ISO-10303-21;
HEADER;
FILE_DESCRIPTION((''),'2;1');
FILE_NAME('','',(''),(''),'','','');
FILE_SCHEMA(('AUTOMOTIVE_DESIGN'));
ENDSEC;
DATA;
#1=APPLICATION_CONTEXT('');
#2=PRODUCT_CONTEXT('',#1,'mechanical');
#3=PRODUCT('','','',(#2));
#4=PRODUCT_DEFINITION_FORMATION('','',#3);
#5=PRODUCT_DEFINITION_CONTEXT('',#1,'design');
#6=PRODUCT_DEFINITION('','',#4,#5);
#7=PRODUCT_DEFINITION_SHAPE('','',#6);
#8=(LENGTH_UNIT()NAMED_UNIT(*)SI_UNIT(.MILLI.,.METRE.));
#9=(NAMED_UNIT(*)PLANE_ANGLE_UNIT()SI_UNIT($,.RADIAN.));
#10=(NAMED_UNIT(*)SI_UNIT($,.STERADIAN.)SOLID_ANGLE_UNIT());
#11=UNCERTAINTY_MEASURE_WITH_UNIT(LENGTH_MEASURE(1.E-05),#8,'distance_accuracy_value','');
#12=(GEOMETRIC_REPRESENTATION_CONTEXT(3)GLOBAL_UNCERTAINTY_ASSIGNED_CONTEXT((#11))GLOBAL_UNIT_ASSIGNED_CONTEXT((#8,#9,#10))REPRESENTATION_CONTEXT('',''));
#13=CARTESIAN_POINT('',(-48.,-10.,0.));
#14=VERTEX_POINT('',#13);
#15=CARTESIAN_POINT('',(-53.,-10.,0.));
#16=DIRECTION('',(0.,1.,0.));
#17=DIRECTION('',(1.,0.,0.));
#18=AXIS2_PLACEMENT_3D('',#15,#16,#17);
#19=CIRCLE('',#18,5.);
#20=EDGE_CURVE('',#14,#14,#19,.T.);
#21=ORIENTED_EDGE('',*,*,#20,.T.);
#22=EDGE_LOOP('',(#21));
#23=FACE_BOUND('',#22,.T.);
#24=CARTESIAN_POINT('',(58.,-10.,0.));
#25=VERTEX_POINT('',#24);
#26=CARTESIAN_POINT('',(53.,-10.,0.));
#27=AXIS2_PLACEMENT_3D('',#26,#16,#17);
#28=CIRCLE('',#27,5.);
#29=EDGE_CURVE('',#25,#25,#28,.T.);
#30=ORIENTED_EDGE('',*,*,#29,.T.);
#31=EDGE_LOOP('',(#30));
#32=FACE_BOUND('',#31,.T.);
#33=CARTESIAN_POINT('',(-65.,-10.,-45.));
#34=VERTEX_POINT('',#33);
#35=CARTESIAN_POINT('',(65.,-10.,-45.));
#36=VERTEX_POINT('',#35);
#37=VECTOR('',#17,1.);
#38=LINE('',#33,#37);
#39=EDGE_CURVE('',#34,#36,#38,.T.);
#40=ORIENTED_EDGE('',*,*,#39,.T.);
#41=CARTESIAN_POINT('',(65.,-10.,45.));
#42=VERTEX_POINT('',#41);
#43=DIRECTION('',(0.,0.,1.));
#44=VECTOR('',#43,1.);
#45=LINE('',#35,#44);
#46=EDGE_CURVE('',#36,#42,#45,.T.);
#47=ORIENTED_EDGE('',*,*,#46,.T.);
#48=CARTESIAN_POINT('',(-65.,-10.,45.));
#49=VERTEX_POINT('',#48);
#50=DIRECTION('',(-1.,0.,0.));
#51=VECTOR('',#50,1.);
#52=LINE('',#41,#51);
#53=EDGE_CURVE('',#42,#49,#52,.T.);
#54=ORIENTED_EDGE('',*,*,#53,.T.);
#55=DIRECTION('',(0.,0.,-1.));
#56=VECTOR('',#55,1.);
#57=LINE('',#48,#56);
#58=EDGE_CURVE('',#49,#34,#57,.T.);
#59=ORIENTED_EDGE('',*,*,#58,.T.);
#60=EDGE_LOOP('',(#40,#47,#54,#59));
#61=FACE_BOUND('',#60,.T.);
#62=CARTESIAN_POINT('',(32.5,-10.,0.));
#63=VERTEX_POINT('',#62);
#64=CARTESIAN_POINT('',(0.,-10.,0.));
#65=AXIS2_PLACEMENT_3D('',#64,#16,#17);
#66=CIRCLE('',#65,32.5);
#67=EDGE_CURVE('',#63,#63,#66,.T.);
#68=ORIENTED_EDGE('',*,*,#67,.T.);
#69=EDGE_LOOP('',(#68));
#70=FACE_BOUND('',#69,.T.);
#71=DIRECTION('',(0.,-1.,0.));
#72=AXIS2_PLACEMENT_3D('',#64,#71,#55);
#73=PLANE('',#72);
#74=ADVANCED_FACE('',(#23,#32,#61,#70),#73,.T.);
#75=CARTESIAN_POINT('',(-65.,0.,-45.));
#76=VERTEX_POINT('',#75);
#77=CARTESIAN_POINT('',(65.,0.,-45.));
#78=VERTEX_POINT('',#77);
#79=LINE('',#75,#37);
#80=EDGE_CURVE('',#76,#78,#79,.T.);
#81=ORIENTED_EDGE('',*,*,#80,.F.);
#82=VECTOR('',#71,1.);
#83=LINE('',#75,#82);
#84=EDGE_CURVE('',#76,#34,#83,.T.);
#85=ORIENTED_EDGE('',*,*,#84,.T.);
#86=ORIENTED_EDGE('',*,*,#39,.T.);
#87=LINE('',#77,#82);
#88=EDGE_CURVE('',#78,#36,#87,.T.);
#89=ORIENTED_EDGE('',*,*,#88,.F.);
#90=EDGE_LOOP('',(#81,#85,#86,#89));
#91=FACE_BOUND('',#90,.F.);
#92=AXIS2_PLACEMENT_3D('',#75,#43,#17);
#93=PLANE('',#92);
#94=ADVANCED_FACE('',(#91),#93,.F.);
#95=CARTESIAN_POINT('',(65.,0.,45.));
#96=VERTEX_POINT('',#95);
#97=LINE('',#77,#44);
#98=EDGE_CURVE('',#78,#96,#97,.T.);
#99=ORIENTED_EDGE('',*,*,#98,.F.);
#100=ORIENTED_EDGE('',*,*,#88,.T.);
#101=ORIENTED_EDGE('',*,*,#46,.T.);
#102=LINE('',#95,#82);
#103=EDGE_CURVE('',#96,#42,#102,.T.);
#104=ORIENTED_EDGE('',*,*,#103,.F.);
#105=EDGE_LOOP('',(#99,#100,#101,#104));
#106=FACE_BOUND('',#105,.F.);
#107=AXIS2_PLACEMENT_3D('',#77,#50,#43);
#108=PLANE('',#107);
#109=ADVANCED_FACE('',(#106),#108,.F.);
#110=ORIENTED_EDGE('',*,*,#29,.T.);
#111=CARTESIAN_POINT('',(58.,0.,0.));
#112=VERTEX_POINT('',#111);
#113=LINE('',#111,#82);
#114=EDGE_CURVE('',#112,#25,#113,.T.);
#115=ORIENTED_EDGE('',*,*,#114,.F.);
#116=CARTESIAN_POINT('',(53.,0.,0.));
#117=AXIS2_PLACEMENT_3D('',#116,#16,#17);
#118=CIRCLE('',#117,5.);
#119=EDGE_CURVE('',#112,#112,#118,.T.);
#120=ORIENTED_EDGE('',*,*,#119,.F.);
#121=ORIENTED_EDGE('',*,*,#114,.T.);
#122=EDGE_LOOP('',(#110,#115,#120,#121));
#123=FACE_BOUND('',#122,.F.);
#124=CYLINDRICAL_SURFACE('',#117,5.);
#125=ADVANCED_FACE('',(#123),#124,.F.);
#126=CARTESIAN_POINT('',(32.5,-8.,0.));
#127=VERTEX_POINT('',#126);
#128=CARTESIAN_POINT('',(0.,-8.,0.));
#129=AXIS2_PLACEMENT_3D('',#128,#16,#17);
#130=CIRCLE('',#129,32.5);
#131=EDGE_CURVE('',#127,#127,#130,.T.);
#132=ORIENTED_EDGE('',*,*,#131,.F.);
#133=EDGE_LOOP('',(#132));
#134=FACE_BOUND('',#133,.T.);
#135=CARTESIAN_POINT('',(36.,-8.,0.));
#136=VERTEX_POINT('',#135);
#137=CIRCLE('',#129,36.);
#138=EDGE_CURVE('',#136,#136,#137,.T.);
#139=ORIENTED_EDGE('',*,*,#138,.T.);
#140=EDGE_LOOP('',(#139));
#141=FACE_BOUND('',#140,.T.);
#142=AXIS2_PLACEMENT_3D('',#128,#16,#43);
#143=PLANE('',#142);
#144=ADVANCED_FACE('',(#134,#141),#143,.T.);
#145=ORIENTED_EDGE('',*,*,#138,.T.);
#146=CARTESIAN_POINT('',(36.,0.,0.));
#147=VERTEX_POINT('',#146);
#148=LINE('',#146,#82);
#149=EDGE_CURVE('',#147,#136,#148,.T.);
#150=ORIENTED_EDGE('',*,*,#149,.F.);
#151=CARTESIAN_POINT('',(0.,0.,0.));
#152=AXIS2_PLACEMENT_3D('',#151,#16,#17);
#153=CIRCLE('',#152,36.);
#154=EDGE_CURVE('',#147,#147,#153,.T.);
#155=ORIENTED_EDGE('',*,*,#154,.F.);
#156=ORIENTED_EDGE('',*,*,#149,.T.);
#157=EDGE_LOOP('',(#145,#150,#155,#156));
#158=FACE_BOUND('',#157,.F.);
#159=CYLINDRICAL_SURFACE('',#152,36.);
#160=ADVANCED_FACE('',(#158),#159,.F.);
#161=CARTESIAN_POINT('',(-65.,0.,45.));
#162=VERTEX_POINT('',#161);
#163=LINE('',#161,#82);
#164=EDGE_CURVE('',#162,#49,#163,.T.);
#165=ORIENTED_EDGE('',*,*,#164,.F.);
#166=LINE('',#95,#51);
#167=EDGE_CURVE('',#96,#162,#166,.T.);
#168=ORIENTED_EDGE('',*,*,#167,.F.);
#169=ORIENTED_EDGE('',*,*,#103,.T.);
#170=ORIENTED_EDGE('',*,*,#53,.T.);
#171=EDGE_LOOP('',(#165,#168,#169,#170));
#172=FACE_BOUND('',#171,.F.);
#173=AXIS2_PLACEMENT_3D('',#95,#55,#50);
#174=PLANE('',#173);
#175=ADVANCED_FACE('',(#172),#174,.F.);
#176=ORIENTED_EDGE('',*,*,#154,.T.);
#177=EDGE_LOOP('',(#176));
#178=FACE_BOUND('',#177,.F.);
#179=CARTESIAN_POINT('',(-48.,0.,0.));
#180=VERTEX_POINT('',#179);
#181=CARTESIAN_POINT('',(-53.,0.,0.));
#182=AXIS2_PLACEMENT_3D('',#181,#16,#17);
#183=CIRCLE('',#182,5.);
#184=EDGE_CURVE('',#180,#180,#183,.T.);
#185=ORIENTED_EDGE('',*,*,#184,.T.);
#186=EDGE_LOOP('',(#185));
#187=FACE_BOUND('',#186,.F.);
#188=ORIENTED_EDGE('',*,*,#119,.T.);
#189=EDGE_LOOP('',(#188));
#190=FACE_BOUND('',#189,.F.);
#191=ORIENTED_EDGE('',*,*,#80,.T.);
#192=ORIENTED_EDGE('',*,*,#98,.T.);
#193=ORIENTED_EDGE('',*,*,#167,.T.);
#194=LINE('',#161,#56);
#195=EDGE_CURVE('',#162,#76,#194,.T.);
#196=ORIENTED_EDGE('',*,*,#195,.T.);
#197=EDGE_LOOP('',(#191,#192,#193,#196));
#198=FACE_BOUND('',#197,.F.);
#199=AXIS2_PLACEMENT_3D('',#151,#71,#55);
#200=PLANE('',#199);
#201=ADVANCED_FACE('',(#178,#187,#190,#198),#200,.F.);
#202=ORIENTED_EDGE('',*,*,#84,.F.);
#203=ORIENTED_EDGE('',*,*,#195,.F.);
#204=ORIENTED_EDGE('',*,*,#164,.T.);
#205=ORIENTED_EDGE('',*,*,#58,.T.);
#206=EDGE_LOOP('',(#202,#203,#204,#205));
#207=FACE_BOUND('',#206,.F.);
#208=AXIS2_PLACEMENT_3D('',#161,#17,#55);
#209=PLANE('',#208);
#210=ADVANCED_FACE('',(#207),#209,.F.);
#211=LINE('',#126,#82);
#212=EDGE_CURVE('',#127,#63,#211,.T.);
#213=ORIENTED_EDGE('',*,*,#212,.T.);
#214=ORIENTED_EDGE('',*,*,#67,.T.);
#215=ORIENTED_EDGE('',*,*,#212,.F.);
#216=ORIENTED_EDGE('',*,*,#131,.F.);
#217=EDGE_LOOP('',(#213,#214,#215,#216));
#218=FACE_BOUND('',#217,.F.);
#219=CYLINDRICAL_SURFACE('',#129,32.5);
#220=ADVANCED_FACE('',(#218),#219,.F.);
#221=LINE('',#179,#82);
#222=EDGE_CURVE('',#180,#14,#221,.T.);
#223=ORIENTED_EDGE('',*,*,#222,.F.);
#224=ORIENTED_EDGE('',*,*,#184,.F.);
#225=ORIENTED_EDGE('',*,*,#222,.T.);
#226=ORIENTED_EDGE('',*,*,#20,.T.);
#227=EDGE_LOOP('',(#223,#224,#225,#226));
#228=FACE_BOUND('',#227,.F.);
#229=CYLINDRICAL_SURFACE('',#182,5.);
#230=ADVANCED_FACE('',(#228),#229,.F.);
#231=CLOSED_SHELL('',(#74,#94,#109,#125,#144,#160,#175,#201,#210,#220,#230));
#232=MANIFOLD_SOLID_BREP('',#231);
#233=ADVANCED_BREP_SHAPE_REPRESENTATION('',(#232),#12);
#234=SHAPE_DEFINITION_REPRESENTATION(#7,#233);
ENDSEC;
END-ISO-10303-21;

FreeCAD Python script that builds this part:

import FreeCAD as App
import Part
import Sketcher


def add_polygon(sketch, points):
    """Adds a closed chain of lines whose ends are joined by coincident constraints."""
    first, n = sketch.GeometryCount, len(points)
    for a, b in zip(points, points[1:] + points[:1]):
        sketch.addGeometry(Part.LineSegment(App.Vector(*a, 0), App.Vector(*b, 0)), False)
    for i in range(n):
        sketch.addConstraint(Sketcher.Constraint("Coincident", first + i, 2, first + (i + 1) % n, 1))

doc = App.newDocument("Part")
body = doc.addObject("PartDesign::Body", "Body")

# Sketch on XZ plane
sketch1 = body.newObject("Sketcher::SketchObject", "Sketch")
sketch1.AttachmentSupport = (doc.getObject("XZ_Plane"), [""])
sketch1.MapMode = "FlatFace"
add_polygon(sketch1, [(-65, -45), (65, -45), (65, 45), (-65, 45)])  # lines 0-3
sketch1.addConstraint([
    Sketcher.Constraint("Horizontal", 0),
    Sketcher.Constraint("Vertical", 1),
    Sketcher.Constraint("Horizontal", 2),
    Sketcher.Constraint("Vertical", 3),
    Sketcher.Constraint("Symmetric", 0, 2, 2, 2, -1, 1),
    Sketcher.Constraint("DistanceX", 0, 1, 0, 2, 130.0),
    Sketcher.Constraint("DistanceY", 1, 1, 1, 2, 90.0),
])
pad1 = body.newObject("PartDesign::Pad", "Pad")
pad1.Profile = sketch1
pad1.Length = 10

# Sketch on XZ plane
sketch2 = body.newObject("Sketcher::SketchObject", "Sketch001")
sketch2.AttachmentSupport = (doc.getObject("XZ_Plane"), [""])
sketch2.MapMode = "FlatFace"
sketch2.addGeometry(Part.Circle(App.Vector(0, 0, 0), App.Vector(0, 0, 1), 36), False)
sketch2.addConstraint([
    Sketcher.Constraint("Coincident", 0, 3, -1, 1),
    Sketcher.Constraint("Diameter", 0, 72.0),
])
pocket1 = body.newObject("PartDesign::Pocket", "Pocket")
pocket1.Profile = sketch2
pocket1.Length = 8
pocket1.Reversed = True

# Sketch on XZ plane
sketch3 = body.newObject("Sketcher::SketchObject", "Sketch002")
sketch3.AttachmentSupport = (doc.getObject("XZ_Plane"), [""])
sketch3.MapMode = "FlatFace"
sketch3.addGeometry([
    Part.Circle(App.Vector(-53, 0, 0), App.Vector(0, 0, 1), 5),
    Part.Circle(App.Vector(53, 0, 0), App.Vector(0, 0, 1), 5),
], False)
sketch3.addConstraint([
    Sketcher.Constraint("Equal", 0, 1),
    Sketcher.Constraint("Symmetric", 0, 3, 1, 3, -1, 1),
    Sketcher.Constraint("PointOnObject", 0, 3, -1),
    Sketcher.Constraint("Diameter", 0, 10.0),
    Sketcher.Constraint("DistanceX", 0, 3, -1, 1, 53.0),
])
pocket2 = body.newObject("PartDesign::Pocket", "Pocket001")
pocket2.Profile = sketch3
pocket2.Length = 10
pocket2.Reversed = True

# Sketch on XZ plane
sketch4 = body.newObject("Sketcher::SketchObject", "Sketch003")
sketch4.AttachmentSupport = (doc.getObject("XZ_Plane"), [""])
sketch4.MapMode = "FlatFace"
sketch4.AttachmentOffset = App.Placement(App.Vector(0, 0, 8), App.Rotation())
sketch4.addGeometry(Part.Circle(App.Vector(0, 0, 0), App.Vector(0, 0, 1), 32), False)
sketch4.addConstraint([
    Sketcher.Constraint("Coincident", 0, 3, -1, 1),
    Sketcher.Constraint("Diameter", 0, 65.0),
])
pocket3 = body.newObject("PartDesign::Pocket", "Pocket002")
pocket3.Profile = sketch4
pocket3.Type = "UpToFirst"
pocket3.Reversed = True

doc.recompute()
